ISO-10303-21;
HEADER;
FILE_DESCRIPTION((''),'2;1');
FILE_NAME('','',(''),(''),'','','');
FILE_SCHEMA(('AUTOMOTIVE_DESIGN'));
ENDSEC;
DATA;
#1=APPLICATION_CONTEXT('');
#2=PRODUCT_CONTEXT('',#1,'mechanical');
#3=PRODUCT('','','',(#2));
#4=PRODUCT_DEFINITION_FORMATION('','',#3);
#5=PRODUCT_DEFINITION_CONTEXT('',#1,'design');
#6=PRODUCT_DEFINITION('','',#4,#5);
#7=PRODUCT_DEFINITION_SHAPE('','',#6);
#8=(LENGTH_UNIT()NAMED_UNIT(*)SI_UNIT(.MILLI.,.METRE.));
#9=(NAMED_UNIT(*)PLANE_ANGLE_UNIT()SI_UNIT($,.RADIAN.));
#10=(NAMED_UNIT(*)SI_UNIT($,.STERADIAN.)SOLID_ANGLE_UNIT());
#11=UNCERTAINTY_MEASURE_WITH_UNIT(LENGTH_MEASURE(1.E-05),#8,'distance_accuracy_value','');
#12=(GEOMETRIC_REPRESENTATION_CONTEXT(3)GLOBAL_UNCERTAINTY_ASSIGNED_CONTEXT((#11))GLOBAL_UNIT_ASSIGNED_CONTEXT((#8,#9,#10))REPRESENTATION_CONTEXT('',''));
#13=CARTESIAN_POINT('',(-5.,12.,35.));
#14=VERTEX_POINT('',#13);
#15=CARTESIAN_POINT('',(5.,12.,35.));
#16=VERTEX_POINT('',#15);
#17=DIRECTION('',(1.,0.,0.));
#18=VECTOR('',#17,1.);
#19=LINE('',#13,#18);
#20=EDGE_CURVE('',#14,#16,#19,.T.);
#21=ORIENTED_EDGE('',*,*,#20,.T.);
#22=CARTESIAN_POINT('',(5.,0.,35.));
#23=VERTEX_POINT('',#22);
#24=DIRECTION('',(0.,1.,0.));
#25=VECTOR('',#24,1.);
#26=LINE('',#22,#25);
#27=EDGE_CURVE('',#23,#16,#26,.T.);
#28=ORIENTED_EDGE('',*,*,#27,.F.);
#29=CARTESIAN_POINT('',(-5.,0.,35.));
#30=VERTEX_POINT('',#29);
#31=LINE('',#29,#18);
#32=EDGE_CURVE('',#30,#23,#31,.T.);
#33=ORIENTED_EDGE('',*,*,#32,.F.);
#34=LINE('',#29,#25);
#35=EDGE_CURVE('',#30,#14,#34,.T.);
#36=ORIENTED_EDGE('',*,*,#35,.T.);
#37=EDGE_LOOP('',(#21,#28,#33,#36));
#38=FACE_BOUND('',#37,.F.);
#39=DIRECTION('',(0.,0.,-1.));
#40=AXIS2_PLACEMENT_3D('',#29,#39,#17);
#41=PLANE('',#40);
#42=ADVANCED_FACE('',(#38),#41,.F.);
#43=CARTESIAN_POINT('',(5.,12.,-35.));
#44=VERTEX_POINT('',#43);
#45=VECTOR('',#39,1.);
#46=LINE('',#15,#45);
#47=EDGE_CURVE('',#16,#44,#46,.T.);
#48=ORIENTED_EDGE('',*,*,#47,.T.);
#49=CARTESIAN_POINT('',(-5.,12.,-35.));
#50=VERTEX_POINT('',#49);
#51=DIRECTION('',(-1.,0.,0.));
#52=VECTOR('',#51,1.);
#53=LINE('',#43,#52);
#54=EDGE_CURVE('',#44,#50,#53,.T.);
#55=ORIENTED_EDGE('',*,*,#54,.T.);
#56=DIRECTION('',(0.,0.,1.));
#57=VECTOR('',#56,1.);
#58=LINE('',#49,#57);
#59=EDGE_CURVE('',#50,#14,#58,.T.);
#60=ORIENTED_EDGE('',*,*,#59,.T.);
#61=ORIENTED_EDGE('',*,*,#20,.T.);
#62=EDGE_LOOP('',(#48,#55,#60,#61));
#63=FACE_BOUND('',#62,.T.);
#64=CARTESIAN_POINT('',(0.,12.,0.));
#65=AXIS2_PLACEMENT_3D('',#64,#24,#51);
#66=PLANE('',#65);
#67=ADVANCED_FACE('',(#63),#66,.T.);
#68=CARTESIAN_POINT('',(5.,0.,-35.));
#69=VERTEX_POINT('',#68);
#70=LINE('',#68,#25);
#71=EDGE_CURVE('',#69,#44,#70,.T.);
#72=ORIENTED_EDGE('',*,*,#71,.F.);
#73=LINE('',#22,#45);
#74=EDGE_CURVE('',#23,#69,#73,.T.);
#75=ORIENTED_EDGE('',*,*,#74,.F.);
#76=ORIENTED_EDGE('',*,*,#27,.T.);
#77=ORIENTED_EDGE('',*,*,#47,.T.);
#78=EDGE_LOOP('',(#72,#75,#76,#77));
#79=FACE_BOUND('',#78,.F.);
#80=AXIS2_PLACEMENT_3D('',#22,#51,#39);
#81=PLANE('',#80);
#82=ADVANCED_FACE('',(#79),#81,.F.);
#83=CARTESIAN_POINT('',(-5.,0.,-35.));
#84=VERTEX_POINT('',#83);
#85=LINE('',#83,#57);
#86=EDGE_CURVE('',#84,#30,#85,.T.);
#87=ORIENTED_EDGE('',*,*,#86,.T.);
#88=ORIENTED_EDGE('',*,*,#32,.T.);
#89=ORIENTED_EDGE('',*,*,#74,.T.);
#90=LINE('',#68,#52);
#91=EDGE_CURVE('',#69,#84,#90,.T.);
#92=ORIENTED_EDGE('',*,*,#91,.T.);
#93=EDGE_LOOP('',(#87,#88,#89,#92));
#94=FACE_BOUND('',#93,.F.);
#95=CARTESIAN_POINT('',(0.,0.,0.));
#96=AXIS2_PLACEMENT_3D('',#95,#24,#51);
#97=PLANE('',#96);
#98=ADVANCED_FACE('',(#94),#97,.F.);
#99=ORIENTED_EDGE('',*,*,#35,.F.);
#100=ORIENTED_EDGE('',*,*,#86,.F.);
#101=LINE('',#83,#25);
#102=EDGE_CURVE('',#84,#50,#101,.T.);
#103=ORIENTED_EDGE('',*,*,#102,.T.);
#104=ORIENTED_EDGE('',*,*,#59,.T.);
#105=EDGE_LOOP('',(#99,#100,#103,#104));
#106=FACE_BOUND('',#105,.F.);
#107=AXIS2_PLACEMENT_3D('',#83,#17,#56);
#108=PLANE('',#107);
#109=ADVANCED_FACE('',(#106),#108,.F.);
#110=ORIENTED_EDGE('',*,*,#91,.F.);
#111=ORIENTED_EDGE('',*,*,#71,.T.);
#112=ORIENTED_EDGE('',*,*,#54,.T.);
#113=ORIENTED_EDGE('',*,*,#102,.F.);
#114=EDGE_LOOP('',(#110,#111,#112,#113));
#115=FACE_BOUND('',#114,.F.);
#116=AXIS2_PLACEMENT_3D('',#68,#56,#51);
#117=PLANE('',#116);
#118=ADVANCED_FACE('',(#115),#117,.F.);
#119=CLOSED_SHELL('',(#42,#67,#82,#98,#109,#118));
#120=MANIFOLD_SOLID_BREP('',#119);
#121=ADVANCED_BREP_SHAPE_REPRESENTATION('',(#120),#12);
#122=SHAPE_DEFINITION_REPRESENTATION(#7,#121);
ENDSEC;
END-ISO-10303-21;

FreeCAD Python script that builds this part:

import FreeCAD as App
import Part
import Sketcher
from FreeCAD import Vector
Q = App.Units.Quantity

doc = App.newDocument("Part")
body = doc.addObject("PartDesign::Body", "Body")

sketch1 = body.newObject("Sketcher::SketchObject", "Sketch")
sketch1.AttachmentSupport = (doc.getObject("XZ_Plane"), [""])
sketch1.MapMode = "FlatFace"
sketch1.addGeometry([
    Part.LineSegment(Vector(-5, 35, 0), Vector(5, 35, 0)),
    Part.LineSegment(Vector(5, 35, 0), Vector(5, -35, 0)),
    Part.LineSegment(Vector(5, -35, 0), Vector(-5, -35, 0)),
    Part.LineSegment(Vector(-5, -35, 0), Vector(-5, 35, 0)),
], False)
sketch1.addConstraint([
    Sketcher.Constraint("Coincident", 0, 2, 1, 1),
    Sketcher.Constraint("Coincident", 1, 2, 2, 1),
    Sketcher.Constraint("Coincident", 2, 2, 3, 1),
    Sketcher.Constraint("Coincident", 3, 2, 0, 1),
    Sketcher.Constraint("Horizontal", 0),
    Sketcher.Constraint("Vertical", 1),
    Sketcher.Constraint("Horizontal", 2),
    Sketcher.Constraint("Vertical", 3),
    Sketcher.Constraint("Symmetric", 0, 2, 2, 2, -1, 1),
    Sketcher.Constraint("DistanceX", 0, 1, 0, 2, Q("10 mm")),
    Sketcher.Constraint("DistanceY", 1, 2, 1, 1, Q("70 mm")),
])
pad1 = body.newObject("PartDesign::Pad", "Pad")
pad1.Profile = sketch1
pad1.Length = 12
pad1.Reversed = True

doc.recompute()
